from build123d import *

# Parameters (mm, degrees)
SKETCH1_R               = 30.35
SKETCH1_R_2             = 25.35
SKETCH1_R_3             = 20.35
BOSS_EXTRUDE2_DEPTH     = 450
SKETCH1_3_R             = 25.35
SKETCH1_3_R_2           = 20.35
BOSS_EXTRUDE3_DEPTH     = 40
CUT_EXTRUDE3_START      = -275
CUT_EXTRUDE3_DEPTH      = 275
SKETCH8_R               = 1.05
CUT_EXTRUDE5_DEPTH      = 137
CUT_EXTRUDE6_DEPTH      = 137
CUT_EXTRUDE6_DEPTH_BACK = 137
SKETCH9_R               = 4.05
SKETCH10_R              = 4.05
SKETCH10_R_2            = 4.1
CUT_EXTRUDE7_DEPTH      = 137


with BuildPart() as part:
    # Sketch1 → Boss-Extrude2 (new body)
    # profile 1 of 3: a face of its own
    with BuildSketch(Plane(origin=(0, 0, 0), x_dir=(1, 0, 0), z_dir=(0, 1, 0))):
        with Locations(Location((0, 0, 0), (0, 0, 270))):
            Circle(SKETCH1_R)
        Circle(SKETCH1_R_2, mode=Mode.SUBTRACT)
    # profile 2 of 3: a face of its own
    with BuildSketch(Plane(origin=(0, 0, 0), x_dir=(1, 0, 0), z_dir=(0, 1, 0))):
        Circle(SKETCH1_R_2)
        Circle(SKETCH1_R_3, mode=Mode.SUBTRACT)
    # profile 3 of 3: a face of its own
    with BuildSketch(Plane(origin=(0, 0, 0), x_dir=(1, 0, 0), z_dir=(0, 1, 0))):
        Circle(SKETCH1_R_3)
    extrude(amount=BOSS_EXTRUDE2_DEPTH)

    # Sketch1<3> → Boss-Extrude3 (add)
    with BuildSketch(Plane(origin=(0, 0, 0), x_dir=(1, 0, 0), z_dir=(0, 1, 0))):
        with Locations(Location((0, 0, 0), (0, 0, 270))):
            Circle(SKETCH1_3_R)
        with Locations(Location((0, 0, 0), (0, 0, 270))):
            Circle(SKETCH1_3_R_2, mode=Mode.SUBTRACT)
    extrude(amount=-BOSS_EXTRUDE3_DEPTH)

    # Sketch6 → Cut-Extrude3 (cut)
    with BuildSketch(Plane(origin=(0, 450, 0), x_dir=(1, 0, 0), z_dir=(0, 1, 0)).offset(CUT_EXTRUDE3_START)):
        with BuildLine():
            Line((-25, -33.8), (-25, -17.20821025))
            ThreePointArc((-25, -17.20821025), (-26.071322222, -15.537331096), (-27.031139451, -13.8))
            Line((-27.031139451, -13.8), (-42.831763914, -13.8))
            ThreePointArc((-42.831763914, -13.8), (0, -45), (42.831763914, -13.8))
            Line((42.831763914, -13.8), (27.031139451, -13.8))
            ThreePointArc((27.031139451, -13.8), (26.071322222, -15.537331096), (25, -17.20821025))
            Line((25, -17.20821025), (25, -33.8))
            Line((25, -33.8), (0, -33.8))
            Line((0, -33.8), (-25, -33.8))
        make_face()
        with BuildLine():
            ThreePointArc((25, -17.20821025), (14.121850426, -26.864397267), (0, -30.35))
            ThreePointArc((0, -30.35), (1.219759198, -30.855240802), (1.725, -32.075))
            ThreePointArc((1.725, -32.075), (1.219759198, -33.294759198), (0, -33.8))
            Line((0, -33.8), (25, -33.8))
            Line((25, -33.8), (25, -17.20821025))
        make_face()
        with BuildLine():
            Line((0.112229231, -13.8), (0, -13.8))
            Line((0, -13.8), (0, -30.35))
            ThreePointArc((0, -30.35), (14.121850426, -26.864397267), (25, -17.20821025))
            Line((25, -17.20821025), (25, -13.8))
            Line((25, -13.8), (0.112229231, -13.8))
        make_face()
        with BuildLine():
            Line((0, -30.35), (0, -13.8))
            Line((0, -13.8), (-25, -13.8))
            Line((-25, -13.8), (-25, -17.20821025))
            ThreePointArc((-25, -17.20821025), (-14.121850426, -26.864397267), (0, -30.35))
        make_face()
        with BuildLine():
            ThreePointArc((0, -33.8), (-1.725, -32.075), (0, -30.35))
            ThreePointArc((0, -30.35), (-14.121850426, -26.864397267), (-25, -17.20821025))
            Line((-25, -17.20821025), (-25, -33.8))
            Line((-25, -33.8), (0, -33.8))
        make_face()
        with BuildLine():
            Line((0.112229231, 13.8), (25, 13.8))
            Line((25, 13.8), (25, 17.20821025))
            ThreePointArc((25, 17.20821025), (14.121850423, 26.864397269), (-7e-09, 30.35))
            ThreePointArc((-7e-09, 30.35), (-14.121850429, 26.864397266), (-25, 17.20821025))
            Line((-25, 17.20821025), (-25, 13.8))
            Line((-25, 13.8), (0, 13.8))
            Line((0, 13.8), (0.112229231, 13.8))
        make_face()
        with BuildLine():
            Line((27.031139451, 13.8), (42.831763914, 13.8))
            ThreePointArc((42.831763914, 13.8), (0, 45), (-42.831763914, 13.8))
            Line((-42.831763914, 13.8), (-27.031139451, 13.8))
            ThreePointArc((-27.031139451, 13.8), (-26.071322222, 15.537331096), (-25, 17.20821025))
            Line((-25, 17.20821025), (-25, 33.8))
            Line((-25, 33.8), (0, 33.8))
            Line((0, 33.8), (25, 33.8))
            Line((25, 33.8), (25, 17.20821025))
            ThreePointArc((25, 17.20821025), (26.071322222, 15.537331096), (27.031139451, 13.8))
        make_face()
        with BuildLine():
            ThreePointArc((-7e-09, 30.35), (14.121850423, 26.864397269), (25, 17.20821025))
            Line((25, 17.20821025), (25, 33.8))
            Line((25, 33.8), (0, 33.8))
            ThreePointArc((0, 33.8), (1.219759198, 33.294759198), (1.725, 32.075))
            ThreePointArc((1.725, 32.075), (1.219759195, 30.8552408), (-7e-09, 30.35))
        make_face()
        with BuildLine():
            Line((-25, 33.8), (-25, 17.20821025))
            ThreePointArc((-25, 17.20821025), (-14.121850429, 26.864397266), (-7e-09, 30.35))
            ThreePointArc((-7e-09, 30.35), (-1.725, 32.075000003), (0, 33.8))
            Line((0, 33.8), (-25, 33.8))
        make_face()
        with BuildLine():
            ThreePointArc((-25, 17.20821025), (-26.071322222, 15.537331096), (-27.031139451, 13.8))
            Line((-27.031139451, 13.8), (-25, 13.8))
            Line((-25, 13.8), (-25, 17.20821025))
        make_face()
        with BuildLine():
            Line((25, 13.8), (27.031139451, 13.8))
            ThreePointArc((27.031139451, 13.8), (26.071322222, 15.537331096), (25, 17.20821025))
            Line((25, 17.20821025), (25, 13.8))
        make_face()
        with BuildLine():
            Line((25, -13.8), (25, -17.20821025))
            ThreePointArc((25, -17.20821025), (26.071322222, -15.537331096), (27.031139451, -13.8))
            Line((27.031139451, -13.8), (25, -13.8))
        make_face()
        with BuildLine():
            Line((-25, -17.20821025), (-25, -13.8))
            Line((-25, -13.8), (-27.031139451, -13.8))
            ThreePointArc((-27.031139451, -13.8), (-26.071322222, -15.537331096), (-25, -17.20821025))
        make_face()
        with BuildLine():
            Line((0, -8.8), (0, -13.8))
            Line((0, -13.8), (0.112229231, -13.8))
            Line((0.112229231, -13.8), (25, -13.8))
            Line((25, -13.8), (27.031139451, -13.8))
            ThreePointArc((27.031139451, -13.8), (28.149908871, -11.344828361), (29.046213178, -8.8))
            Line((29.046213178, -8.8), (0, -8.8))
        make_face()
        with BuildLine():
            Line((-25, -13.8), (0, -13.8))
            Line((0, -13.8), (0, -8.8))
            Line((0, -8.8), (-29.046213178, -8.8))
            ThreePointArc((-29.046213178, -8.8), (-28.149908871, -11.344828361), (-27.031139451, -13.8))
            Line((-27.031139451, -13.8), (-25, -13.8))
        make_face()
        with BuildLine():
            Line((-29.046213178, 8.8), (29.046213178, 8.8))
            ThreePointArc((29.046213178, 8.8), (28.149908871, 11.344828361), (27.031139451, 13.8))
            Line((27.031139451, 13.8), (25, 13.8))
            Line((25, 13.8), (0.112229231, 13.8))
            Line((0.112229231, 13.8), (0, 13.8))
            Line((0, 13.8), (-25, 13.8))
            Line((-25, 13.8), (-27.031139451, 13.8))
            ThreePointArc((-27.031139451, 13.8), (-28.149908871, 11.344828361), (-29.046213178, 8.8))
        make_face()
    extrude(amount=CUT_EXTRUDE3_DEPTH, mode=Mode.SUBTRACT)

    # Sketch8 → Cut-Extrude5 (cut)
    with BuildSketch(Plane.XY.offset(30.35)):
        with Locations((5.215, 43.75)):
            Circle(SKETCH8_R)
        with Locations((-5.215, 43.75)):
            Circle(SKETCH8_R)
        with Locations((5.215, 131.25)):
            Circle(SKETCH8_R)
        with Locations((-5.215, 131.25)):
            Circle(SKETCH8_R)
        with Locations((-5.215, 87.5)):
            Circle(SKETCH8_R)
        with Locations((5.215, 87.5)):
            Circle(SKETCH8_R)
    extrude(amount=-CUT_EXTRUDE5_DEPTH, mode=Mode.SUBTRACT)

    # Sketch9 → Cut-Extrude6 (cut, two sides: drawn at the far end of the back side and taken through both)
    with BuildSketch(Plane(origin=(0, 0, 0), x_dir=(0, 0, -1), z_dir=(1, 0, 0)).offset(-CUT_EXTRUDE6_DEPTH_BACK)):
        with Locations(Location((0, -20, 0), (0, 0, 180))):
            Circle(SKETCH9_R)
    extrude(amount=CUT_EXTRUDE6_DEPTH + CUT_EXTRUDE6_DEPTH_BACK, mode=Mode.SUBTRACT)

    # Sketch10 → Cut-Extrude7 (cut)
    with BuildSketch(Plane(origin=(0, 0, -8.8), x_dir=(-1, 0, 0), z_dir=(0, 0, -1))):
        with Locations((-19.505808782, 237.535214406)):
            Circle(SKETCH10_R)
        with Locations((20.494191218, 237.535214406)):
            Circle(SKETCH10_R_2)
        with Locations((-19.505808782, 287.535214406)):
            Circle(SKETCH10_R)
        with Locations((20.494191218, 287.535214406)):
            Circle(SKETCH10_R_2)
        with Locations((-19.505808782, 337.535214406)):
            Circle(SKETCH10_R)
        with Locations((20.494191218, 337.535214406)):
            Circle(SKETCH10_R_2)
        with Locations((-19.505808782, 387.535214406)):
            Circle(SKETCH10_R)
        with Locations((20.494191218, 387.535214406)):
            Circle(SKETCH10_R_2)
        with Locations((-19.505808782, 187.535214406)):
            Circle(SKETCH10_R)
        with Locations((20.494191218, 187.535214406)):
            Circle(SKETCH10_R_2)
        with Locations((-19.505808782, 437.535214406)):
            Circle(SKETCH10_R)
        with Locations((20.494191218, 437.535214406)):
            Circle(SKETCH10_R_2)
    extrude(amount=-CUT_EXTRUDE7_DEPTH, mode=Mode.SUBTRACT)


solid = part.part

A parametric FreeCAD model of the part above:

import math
import FreeCAD as App
import Part
import Sketcher

doc = App.newDocument("Part")
body = doc.addObject("PartDesign::Body", "Body")

sketch1 = body.newObject("Sketcher::SketchObject", "Sketch")
sketch1.AttachmentSupport = (doc.getObject("XZ_Plane"), [""])
sketch1.MapMode = "FlatFace"
sketch1.addGeometry(Part.Circle(App.Vector(0, 0, 0), App.Vector(0, 0, 1), 30), False)
sketch1.addConstraint(Sketcher.Constraint("Coincident", 0, 3, -1, 1))
sketch1.addConstraint(Sketcher.Constraint("Diameter", 0, 60.7))
pad1 = body.newObject("PartDesign::Pad", "Pad")
pad1.Profile = sketch1
pad1.Length = 450
pad1.Reversed = True

sketch2 = body.newObject("Sketcher::SketchObject", "Sketch001")
sketch2.AttachmentSupport = (doc.getObject("XZ_Plane"), [""])
sketch2.MapMode = "FlatFace"
sketch2.addGeometry(Part.Circle(App.Vector(0, 0, 0), App.Vector(0, 0, 1), 25), False)
sketch2.addGeometry(Part.Circle(App.Vector(0, 0, 0), App.Vector(0, 0, 1), 20), False)
sketch2.addConstraint(Sketcher.Constraint("Coincident", 0, 3, -1, 1))
sketch2.addConstraint(Sketcher.Constraint("Coincident", 1, 3, -1, 1))
sketch2.addConstraint(Sketcher.Constraint("Diameter", 0, 50.7))
sketch2.addConstraint(Sketcher.Constraint("Diameter", 1, 40.7))
pad2 = body.newObject("PartDesign::Pad", "Pad001")
pad2.Profile = sketch2
pad2.Length = 40

sketch3 = body.newObject("Sketcher::SketchObject", "Sketch002")
sketch3.AttachmentSupport = (doc.getObject("XZ_Plane"), [""])
sketch3.MapMode = "FlatFace"
sketch3.AttachmentOffset = App.Placement(App.Vector(0, 0, -175), App.Rotation())
sketch3.addGeometry(Part.ArcOfCircle(Part.Circle(App.Vector(0, 0, 0), App.Vector(0, 0, 1), 45), math.radians(18), math.radians(162)), False)
sketch3.addGeometry(Part.LineSegment(App.Vector(42.8, 13.8, 0), App.Vector(27, 13.8, 0)), False)
sketch3.addGeometry(Part.ArcOfCircle(Part.Circle(App.Vector(0, 0, 0), App.Vector(0, 0, 1), 30.4), math.radians(16.85), math.radians(27.05)), False)
sketch3.addGeometry(Part.LineSegment(App.Vector(29, 8.8, 0), App.Vector(-29, 8.8, 0)), False)
sketch3.addGeometry(Part.ArcOfCircle(Part.Circle(App.Vector(0, 0, 0), App.Vector(0, 0, 1), 30.4), math.radians(152.95), math.radians(163.15)), False)
sketch3.addGeometry(Part.LineSegment(App.Vector(-27, 13.8, 0), App.Vector(-42.8, 13.8, 0)), False)
sketch3.addGeometry(Part.ArcOfCircle(Part.Circle(App.Vector(0, 32.1, 0), App.Vector(0, 0, 1), 1.7), math.radians(0), math.radians(90)), False)
sketch3.addGeometry(Part.ArcOfCircle(Part.Circle(App.Vector(0, 32.1, 0), App.Vector(0, 0, 1), 1.7), math.radians(90), math.radians(270)), False)
sketch3.addGeometry(Part.ArcOfCircle(Part.Circle(App.Vector(0, 32.1, 0), App.Vector(0, 0, 1), 1.7), math.radians(-90), math.radians(0)), False)
sketch3.addGeometry(Part.ArcOfCircle(Part.Circle(App.Vector(0, 0, 0), App.Vector(0, 0, 1), 45), math.radians(-162), math.radians(-18)), False)
sketch3.addGeometry(Part.LineSegment(App.Vector(-42.8, -13.8, 0), App.Vector(-27, -13.8, 0)), False)
sketch3.addGeometry(Part.ArcOfCircle(Part.Circle(App.Vector(0, 0, 0), App.Vector(0, 0, 1), 30.4), math.radians(-163.15), math.radians(-152.95)), False)
sketch3.addGeometry(Part.LineSegment(App.Vector(-29, -8.8, 0), App.Vector(29, -8.8, 0)), False)
sketch3.addGeometry(Part.ArcOfCircle(Part.Circle(App.Vector(0, 0, 0), App.Vector(0, 0, 1), 30.4), math.radians(-27.05), math.radians(-16.85)), False)
sketch3.addGeometry(Part.LineSegment(App.Vector(27, -13.8, 0), App.Vector(42.8, -13.8, 0)), False)
sketch3.addGeometry(Part.ArcOfCircle(Part.Circle(App.Vector(0, -32.1, 0), App.Vector(0, 0, 1), 1.7), math.radians(0), math.radians(90)), False)
sketch3.addGeometry(Part.ArcOfCircle(Part.Circle(App.Vector(0, -32.1, 0), App.Vector(0, 0, 1), 1.7), math.radians(90), math.radians(270)), False)
sketch3.addGeometry(Part.ArcOfCircle(Part.Circle(App.Vector(0, -32.1, 0), App.Vector(0, 0, 1), 1.7), math.radians(-90), math.radians(0)), False)
sketch3.addConstraint(Sketcher.Constraint("Coincident", 0, 1, 1, 1))
sketch3.addConstraint(Sketcher.Constraint("Coincident", 1, 2, 2, 2))
sketch3.addConstraint(Sketcher.Constraint("Coincident", 2, 1, 3, 1))
sketch3.addConstraint(Sketcher.Constraint("Coincident", 3, 2, 4, 2))
sketch3.addConstraint(Sketcher.Constraint("Coincident", 4, 1, 5, 1))
sketch3.addConstraint(Sketcher.Constraint("Coincident", 5, 2, 0, 2))
sketch3.addConstraint(Sketcher.Constraint("Tangent", 6, 2, 7, 1))
sketch3.addConstraint(Sketcher.Constraint("Tangent", 7, 2, 8, 1))
sketch3.addConstraint(Sketcher.Constraint("Tangent", 8, 2, 6, 1))
sketch3.addConstraint(Sketcher.Constraint("Coincident", 9, 1, 10, 1))
sketch3.addConstraint(Sketcher.Constraint("Coincident", 10, 2, 11, 2))
sketch3.addConstraint(Sketcher.Constraint("Coincident", 11, 1, 12, 1))
sketch3.addConstraint(Sketcher.Constraint("Coincident", 12, 2, 13, 2))
sketch3.addConstraint(Sketcher.Constraint("Coincident", 13, 1, 14, 1))
sketch3.addConstraint(Sketcher.Constraint("Coincident", 14, 2, 9, 2))
sketch3.addConstraint(Sketcher.Constraint("Tangent", 15, 2, 16, 1))
sketch3.addConstraint(Sketcher.Constraint("Tangent", 16, 2, 17, 1))
sketch3.addConstraint(Sketcher.Constraint("Tangent", 17, 2, 15, 1))
sketch3.addConstraint(Sketcher.Constraint("Horizontal", 1))
sketch3.addConstraint(Sketcher.Constraint("Horizontal", 3))
sketch3.addConstraint(Sketcher.Constraint("Horizontal", 5))
sketch3.addConstraint(Sketcher.Constraint("Horizontal", 10))
sketch3.addConstraint(Sketcher.Constraint("Horizontal", 12))
sketch3.addConstraint(Sketcher.Constraint("Horizontal", 14))
sketch3.addConstraint(Sketcher.Constraint("Coincident", 0, 3, -1, 1))
sketch3.addConstraint(Sketcher.Constraint("Coincident", 2, 3, -1, 1))
sketch3.addConstraint(Sketcher.Constraint("Coincident", 4, 3, -1, 1))
sketch3.addConstraint(Sketcher.Constraint("Coincident", 9, 3, -1, 1))
sketch3.addConstraint(Sketcher.Constraint("Coincident", 11, 3, -1, 1))
sketch3.addConstraint(Sketcher.Constraint("Coincident", 13, 3, -1, 1))
sketch3.addConstraint(Sketcher.Constraint("Equal", 2, 4))
sketch3.addConstraint(Sketcher.Constraint("Equal", 0, 9))
sketch3.addConstraint(Sketcher.Constraint("Equal", 4, 11))
sketch3.addConstraint(Sketcher.Constraint("Equal", 11, 13))
sketch3.addConstraint(Sketcher.Constraint("Equal", 8, 15))
sketch3.addConstraint(Sketcher.Constraint("Symmetric", 6, 3, 15, 3, -1, 1))
sketch3.addConstraint(Sketcher.Constraint("Symmetric", 8, 2, 17, 2, -1))
sketch3.addConstraint(Sketcher.Constraint("PointOnObject", 6, 2, -2))
sketch3.addConstraint(Sketcher.Constraint("PointOnObject", 7, 2, -2))
sketch3.addConstraint(Sketcher.Constraint("PointOnObject", 15, 2, -2))
sketch3.addConstraint(Sketcher.Constraint("PointOnObject", 16, 2, -2))
sketch3.addConstraint(Sketcher.Constraint("Horizontal", 1, 2, 4, 1))
sketch3.addConstraint(Sketcher.Constraint("Horizontal", 7, 3, 8, 2))
sketch3.addConstraint(Sketcher.Constraint("Horizontal", 10, 2, 13, 1))
sketch3.addConstraint(Sketcher.Constraint("Vertical", 5, 2, 9, 1))
sketch3.addConstraint(Sketcher.Constraint("Vertical", 3, 2, 11, 1))
sketch3.addConstraint(Sketcher.Constraint("Radius", 0, 45.0))
sketch3.addConstraint(Sketcher.Constraint("Radius", 2, 30.35))
sketch3.addConstraint(Sketcher.Constraint("Radius", 6, 1.725))
sketch3.addConstraint(Sketcher.Constraint("DistanceY", 2, 1, 1, 2, 5.0))
sketch3.addConstraint(Sketcher.Constraint("DistanceY", 1, 2, 6, 2, 20.0))
sketch3.addConstraint(Sketcher.Constraint("DistanceY", -1, 1, 0, 1, 13.8))
pocket1 = body.newObject("PartDesign::Pocket", "Pocket")
pocket1.Profile = sketch3
pocket1.Length = 275

sketch4 = body.newObject("Sketcher::SketchObject", "Sketch003")
sketch4.AttachmentSupport = (doc.getObject("XY_Plane"), [""])
sketch4.MapMode = "FlatFace"
sketch4.AttachmentOffset = App.Placement(App.Vector(0, 0, 30.35), App.Rotation())
sketch4.addGeometry(Part.Circle(App.Vector(5.2, 43.8, 0), App.Vector(0, 0, 1), 1.1), False)
sketch4.addGeometry(Part.Circle(App.Vector(-5.2, 43.8, 0), App.Vector(0, 0, 1), 1.1), False)
sketch4.addGeometry(Part.Circle(App.Vector(5.2, 131.2, 0), App.Vector(0, 0, 1), 1.1), False)
sketch4.addGeometry(Part.Circle(App.Vector(-5.2, 131.2, 0), App.Vector(0, 0, 1), 1.1), False)
sketch4.addGeometry(Part.Circle(App.Vector(-5.2, 87.5, 0), App.Vector(0, 0, 1), 1.1), False)
sketch4.addGeometry(Part.Circle(App.Vector(5.2, 87.5, 0), App.Vector(0, 0, 1), 1.1), False)
sketch4.addConstraint(Sketcher.Constraint("Equal", 0, 1))
sketch4.addConstraint(Sketcher.Constraint("Equal", 1, 2))
sketch4.addConstraint(Sketcher.Constraint("Equal", 2, 3))
sketch4.addConstraint(Sketcher.Constraint("Equal", 3, 4))
sketch4.addConstraint(Sketcher.Constraint("Equal", 4, 5))
sketch4.addConstraint(Sketcher.Constraint("Symmetric", 0, 3, 1, 3, -2))
sketch4.addConstraint(Sketcher.Constraint("Symmetric", 2, 3, 3, 3, -2))
sketch4.addConstraint(Sketcher.Constraint("Symmetric", 4, 3, 5, 3, -2))
sketch4.addConstraint(Sketcher.Constraint("Vertical", 0, 3, 2, 3))
sketch4.addConstraint(Sketcher.Constraint("Vertical", 3, 3, 4, 3))
sketch4.addConstraint(Sketcher.Constraint("Diameter", 0, 2.1))
sketch4.addConstraint(Sketcher.Constraint("DistanceY", -1, 1, 4, 3, 87.5))
sketch4.addConstraint(Sketcher.Constraint("DistanceY", 0, 3, 2, 3, 87.5))
sketch4.addConstraint(Sketcher.Constraint("DistanceY", -1, 1, 0, 3, 43.75))
sketch4.addConstraint(Sketcher.Constraint("DistanceX", 1, 3, 0, 3, 10.43))
pocket2 = body.newObject("PartDesign::Pocket", "Pocket001")
pocket2.Profile = sketch4
pocket2.Length = 137

sketch5 = body.newObject("Sketcher::SketchObject", "Sketch004")
sketch5.AttachmentSupport = (doc.getObject("YZ_Plane"), [""])
sketch5.MapMode = "FlatFace"
sketch5.addGeometry(Part.Circle(App.Vector(-20, 0, 0), App.Vector(0, 0, 1), 4), False)
sketch5.addConstraint(Sketcher.Constraint("PointOnObject", 0, 3, -1))
sketch5.addConstraint(Sketcher.Constraint("Diameter", 0, 8.1))
sketch5.addConstraint(Sketcher.Constraint("DistanceX", 0, 3, -1, 1, 20.0))
pocket3 = body.newObject("PartDesign::Pocket", "Pocket002")
pocket3.Profile = sketch5
pocket3.Type = "ThroughAll"
pocket3.Midplane = True

sketch6 = body.newObject("Sketcher::SketchObject", "Sketch005")
sketch6.AttachmentSupport = (doc.getObject("XY_Plane"), [""])
sketch6.MapMode = "FlatFace"
sketch6.AttachmentOffset = App.Placement(App.Vector(0, 0, -8.8), App.Rotation())
sketch6.addGeometry(Part.Circle(App.Vector(19.5, 237.5, 0), App.Vector(0, 0, 1), 4), False)
sketch6.addGeometry(Part.Circle(App.Vector(-20.5, 237.5, 0), App.Vector(0, 0, 1), 4.1), False)
sketch6.addGeometry(Part.Circle(App.Vector(19.5, 287.5, 0), App.Vector(0, 0, 1), 4), False)
sketch6.addGeometry(Part.Circle(App.Vector(-20.5, 287.5, 0), App.Vector(0, 0, 1), 4.1), False)
sketch6.addGeometry(Part.Circle(App.Vector(19.5, 337.5, 0), App.Vector(0, 0, 1), 4), False)
sketch6.addGeometry(Part.Circle(App.Vector(-20.5, 337.5, 0), App.Vector(0, 0, 1), 4.1), False)
sketch6.addGeometry(Part.Circle(App.Vector(19.5, 387.5, 0), App.Vector(0, 0, 1), 4), False)
sketch6.addGeometry(Part.Circle(App.Vector(-20.5, 387.5, 0), App.Vector(0, 0, 1), 4.1), False)
sketch6.addGeometry(Part.Circle(App.Vector(19.5, 187.5, 0), App.Vector(0, 0, 1), 4), False)
sketch6.addGeometry(Part.Circle(App.Vector(-20.5, 187.5, 0), App.Vector(0, 0, 1), 4.1), False)
sketch6.addGeometry(Part.Circle(App.Vector(19.5, 437.5, 0), App.Vector(0, 0, 1), 4), False)
sketch6.addGeometry(Part.Circle(App.Vector(-20.5, 437.5, 0), App.Vector(0, 0, 1), 4.1), False)
sketch6.addConstraint(Sketcher.Constraint("Equal", 0, 2))
sketch6.addConstraint(Sketcher.Constraint("Equal", 1, 3))
sketch6.addConstraint(Sketcher.Constraint("Equal", 2, 4))
sketch6.addConstraint(Sketcher.Constraint("Equal", 3, 5))
sketch6.addConstraint(Sketcher.Constraint("Equal", 4, 6))
sketch6.addConstraint(Sketcher.Constraint("Equal", 5, 7))
sketch6.addConstraint(Sketcher.Constraint("Equal", 6, 8))
sketch6.addConstraint(Sketcher.Constraint("Equal", 7, 9))
sketch6.addConstraint(Sketcher.Constraint("Equal", 8, 10))
sketch6.addConstraint(Sketcher.Constraint("Equal", 9, 11))
sketch6.addConstraint(Sketcher.Constraint("Horizontal", 0, 3, 1, 3))
sketch6.addConstraint(Sketcher.Constraint("Horizontal", 2, 3, 3, 3))
sketch6.addConstraint(Sketcher.Constraint("Horizontal", 4, 3, 5, 3))
sketch6.addConstraint(Sketcher.Constraint("Horizontal", 6, 3, 7, 3))
sketch6.addConstraint(Sketcher.Constraint("Horizontal", 8, 3, 9, 3))
sketch6.addConstraint(Sketcher.Constraint("Horizontal", 10, 3, 11, 3))
sketch6.addConstraint(Sketcher.Constraint("Vertical", 0, 3, 2, 3))
sketch6.addConstraint(Sketcher.Constraint("Vertical", 1, 3, 3, 3))
sketch6.addConstraint(Sketcher.Constraint("Vertical", 2, 3, 4, 3))
sketch6.addConstraint(Sketcher.Constraint("Vertical", 3, 3, 5, 3))
sketch6.addConstraint(Sketcher.Constraint("Vertical", 4, 3, 6, 3))
sketch6.addConstraint(Sketcher.Constraint("Vertical", 5, 3, 7, 3))
sketch6.addConstraint(Sketcher.Constraint("Vertical", 6, 3, 8, 3))
sketch6.addConstraint(Sketcher.Constraint("Vertical", 7, 3, 9, 3))
sketch6.addConstraint(Sketcher.Constraint("Vertical", 8, 3, 10, 3))
sketch6.addConstraint(Sketcher.Constraint("Vertical", 9, 3, 11, 3))
sketch6.addConstraint(Sketcher.Constraint("Diameter", 0, 8.1))
sketch6.addConstraint(Sketcher.Constraint("Diameter", 1, 8.2))
sketch6.addConstraint(Sketcher.Constraint("DistanceX", 1, 3, 0, 3, 40.0))
sketch6.addConstraint(Sketcher.Constraint("DistanceY", 0, 3, 2, 3, 50.0))
sketch6.addConstraint(Sketcher.Constraint("DistanceY", 2, 3, 4, 3, 50.0))
sketch6.addConstraint(Sketcher.Constraint("DistanceY", 4, 3, 6, 3, 50.0))
sketch6.addConstraint(Sketcher.Constraint("DistanceY", 8, 3, 0, 3, 50.0))
sketch6.addConstraint(Sketcher.Constraint("DistanceY", 6, 3, 10, 3, 50.0))
sketch6.addConstraint(Sketcher.Constraint("DistanceX", -1, 1, 0, 3, 19.505809))
sketch6.addConstraint(Sketcher.Constraint("DistanceY", -1, 1, 0, 3, 237.535214))
pocket4 = body.newObject("PartDesign::Pocket", "Pocket003")
pocket4.Profile = sketch6
pocket4.Length = 137
pocket4.Reversed = True

doc.recompute()
